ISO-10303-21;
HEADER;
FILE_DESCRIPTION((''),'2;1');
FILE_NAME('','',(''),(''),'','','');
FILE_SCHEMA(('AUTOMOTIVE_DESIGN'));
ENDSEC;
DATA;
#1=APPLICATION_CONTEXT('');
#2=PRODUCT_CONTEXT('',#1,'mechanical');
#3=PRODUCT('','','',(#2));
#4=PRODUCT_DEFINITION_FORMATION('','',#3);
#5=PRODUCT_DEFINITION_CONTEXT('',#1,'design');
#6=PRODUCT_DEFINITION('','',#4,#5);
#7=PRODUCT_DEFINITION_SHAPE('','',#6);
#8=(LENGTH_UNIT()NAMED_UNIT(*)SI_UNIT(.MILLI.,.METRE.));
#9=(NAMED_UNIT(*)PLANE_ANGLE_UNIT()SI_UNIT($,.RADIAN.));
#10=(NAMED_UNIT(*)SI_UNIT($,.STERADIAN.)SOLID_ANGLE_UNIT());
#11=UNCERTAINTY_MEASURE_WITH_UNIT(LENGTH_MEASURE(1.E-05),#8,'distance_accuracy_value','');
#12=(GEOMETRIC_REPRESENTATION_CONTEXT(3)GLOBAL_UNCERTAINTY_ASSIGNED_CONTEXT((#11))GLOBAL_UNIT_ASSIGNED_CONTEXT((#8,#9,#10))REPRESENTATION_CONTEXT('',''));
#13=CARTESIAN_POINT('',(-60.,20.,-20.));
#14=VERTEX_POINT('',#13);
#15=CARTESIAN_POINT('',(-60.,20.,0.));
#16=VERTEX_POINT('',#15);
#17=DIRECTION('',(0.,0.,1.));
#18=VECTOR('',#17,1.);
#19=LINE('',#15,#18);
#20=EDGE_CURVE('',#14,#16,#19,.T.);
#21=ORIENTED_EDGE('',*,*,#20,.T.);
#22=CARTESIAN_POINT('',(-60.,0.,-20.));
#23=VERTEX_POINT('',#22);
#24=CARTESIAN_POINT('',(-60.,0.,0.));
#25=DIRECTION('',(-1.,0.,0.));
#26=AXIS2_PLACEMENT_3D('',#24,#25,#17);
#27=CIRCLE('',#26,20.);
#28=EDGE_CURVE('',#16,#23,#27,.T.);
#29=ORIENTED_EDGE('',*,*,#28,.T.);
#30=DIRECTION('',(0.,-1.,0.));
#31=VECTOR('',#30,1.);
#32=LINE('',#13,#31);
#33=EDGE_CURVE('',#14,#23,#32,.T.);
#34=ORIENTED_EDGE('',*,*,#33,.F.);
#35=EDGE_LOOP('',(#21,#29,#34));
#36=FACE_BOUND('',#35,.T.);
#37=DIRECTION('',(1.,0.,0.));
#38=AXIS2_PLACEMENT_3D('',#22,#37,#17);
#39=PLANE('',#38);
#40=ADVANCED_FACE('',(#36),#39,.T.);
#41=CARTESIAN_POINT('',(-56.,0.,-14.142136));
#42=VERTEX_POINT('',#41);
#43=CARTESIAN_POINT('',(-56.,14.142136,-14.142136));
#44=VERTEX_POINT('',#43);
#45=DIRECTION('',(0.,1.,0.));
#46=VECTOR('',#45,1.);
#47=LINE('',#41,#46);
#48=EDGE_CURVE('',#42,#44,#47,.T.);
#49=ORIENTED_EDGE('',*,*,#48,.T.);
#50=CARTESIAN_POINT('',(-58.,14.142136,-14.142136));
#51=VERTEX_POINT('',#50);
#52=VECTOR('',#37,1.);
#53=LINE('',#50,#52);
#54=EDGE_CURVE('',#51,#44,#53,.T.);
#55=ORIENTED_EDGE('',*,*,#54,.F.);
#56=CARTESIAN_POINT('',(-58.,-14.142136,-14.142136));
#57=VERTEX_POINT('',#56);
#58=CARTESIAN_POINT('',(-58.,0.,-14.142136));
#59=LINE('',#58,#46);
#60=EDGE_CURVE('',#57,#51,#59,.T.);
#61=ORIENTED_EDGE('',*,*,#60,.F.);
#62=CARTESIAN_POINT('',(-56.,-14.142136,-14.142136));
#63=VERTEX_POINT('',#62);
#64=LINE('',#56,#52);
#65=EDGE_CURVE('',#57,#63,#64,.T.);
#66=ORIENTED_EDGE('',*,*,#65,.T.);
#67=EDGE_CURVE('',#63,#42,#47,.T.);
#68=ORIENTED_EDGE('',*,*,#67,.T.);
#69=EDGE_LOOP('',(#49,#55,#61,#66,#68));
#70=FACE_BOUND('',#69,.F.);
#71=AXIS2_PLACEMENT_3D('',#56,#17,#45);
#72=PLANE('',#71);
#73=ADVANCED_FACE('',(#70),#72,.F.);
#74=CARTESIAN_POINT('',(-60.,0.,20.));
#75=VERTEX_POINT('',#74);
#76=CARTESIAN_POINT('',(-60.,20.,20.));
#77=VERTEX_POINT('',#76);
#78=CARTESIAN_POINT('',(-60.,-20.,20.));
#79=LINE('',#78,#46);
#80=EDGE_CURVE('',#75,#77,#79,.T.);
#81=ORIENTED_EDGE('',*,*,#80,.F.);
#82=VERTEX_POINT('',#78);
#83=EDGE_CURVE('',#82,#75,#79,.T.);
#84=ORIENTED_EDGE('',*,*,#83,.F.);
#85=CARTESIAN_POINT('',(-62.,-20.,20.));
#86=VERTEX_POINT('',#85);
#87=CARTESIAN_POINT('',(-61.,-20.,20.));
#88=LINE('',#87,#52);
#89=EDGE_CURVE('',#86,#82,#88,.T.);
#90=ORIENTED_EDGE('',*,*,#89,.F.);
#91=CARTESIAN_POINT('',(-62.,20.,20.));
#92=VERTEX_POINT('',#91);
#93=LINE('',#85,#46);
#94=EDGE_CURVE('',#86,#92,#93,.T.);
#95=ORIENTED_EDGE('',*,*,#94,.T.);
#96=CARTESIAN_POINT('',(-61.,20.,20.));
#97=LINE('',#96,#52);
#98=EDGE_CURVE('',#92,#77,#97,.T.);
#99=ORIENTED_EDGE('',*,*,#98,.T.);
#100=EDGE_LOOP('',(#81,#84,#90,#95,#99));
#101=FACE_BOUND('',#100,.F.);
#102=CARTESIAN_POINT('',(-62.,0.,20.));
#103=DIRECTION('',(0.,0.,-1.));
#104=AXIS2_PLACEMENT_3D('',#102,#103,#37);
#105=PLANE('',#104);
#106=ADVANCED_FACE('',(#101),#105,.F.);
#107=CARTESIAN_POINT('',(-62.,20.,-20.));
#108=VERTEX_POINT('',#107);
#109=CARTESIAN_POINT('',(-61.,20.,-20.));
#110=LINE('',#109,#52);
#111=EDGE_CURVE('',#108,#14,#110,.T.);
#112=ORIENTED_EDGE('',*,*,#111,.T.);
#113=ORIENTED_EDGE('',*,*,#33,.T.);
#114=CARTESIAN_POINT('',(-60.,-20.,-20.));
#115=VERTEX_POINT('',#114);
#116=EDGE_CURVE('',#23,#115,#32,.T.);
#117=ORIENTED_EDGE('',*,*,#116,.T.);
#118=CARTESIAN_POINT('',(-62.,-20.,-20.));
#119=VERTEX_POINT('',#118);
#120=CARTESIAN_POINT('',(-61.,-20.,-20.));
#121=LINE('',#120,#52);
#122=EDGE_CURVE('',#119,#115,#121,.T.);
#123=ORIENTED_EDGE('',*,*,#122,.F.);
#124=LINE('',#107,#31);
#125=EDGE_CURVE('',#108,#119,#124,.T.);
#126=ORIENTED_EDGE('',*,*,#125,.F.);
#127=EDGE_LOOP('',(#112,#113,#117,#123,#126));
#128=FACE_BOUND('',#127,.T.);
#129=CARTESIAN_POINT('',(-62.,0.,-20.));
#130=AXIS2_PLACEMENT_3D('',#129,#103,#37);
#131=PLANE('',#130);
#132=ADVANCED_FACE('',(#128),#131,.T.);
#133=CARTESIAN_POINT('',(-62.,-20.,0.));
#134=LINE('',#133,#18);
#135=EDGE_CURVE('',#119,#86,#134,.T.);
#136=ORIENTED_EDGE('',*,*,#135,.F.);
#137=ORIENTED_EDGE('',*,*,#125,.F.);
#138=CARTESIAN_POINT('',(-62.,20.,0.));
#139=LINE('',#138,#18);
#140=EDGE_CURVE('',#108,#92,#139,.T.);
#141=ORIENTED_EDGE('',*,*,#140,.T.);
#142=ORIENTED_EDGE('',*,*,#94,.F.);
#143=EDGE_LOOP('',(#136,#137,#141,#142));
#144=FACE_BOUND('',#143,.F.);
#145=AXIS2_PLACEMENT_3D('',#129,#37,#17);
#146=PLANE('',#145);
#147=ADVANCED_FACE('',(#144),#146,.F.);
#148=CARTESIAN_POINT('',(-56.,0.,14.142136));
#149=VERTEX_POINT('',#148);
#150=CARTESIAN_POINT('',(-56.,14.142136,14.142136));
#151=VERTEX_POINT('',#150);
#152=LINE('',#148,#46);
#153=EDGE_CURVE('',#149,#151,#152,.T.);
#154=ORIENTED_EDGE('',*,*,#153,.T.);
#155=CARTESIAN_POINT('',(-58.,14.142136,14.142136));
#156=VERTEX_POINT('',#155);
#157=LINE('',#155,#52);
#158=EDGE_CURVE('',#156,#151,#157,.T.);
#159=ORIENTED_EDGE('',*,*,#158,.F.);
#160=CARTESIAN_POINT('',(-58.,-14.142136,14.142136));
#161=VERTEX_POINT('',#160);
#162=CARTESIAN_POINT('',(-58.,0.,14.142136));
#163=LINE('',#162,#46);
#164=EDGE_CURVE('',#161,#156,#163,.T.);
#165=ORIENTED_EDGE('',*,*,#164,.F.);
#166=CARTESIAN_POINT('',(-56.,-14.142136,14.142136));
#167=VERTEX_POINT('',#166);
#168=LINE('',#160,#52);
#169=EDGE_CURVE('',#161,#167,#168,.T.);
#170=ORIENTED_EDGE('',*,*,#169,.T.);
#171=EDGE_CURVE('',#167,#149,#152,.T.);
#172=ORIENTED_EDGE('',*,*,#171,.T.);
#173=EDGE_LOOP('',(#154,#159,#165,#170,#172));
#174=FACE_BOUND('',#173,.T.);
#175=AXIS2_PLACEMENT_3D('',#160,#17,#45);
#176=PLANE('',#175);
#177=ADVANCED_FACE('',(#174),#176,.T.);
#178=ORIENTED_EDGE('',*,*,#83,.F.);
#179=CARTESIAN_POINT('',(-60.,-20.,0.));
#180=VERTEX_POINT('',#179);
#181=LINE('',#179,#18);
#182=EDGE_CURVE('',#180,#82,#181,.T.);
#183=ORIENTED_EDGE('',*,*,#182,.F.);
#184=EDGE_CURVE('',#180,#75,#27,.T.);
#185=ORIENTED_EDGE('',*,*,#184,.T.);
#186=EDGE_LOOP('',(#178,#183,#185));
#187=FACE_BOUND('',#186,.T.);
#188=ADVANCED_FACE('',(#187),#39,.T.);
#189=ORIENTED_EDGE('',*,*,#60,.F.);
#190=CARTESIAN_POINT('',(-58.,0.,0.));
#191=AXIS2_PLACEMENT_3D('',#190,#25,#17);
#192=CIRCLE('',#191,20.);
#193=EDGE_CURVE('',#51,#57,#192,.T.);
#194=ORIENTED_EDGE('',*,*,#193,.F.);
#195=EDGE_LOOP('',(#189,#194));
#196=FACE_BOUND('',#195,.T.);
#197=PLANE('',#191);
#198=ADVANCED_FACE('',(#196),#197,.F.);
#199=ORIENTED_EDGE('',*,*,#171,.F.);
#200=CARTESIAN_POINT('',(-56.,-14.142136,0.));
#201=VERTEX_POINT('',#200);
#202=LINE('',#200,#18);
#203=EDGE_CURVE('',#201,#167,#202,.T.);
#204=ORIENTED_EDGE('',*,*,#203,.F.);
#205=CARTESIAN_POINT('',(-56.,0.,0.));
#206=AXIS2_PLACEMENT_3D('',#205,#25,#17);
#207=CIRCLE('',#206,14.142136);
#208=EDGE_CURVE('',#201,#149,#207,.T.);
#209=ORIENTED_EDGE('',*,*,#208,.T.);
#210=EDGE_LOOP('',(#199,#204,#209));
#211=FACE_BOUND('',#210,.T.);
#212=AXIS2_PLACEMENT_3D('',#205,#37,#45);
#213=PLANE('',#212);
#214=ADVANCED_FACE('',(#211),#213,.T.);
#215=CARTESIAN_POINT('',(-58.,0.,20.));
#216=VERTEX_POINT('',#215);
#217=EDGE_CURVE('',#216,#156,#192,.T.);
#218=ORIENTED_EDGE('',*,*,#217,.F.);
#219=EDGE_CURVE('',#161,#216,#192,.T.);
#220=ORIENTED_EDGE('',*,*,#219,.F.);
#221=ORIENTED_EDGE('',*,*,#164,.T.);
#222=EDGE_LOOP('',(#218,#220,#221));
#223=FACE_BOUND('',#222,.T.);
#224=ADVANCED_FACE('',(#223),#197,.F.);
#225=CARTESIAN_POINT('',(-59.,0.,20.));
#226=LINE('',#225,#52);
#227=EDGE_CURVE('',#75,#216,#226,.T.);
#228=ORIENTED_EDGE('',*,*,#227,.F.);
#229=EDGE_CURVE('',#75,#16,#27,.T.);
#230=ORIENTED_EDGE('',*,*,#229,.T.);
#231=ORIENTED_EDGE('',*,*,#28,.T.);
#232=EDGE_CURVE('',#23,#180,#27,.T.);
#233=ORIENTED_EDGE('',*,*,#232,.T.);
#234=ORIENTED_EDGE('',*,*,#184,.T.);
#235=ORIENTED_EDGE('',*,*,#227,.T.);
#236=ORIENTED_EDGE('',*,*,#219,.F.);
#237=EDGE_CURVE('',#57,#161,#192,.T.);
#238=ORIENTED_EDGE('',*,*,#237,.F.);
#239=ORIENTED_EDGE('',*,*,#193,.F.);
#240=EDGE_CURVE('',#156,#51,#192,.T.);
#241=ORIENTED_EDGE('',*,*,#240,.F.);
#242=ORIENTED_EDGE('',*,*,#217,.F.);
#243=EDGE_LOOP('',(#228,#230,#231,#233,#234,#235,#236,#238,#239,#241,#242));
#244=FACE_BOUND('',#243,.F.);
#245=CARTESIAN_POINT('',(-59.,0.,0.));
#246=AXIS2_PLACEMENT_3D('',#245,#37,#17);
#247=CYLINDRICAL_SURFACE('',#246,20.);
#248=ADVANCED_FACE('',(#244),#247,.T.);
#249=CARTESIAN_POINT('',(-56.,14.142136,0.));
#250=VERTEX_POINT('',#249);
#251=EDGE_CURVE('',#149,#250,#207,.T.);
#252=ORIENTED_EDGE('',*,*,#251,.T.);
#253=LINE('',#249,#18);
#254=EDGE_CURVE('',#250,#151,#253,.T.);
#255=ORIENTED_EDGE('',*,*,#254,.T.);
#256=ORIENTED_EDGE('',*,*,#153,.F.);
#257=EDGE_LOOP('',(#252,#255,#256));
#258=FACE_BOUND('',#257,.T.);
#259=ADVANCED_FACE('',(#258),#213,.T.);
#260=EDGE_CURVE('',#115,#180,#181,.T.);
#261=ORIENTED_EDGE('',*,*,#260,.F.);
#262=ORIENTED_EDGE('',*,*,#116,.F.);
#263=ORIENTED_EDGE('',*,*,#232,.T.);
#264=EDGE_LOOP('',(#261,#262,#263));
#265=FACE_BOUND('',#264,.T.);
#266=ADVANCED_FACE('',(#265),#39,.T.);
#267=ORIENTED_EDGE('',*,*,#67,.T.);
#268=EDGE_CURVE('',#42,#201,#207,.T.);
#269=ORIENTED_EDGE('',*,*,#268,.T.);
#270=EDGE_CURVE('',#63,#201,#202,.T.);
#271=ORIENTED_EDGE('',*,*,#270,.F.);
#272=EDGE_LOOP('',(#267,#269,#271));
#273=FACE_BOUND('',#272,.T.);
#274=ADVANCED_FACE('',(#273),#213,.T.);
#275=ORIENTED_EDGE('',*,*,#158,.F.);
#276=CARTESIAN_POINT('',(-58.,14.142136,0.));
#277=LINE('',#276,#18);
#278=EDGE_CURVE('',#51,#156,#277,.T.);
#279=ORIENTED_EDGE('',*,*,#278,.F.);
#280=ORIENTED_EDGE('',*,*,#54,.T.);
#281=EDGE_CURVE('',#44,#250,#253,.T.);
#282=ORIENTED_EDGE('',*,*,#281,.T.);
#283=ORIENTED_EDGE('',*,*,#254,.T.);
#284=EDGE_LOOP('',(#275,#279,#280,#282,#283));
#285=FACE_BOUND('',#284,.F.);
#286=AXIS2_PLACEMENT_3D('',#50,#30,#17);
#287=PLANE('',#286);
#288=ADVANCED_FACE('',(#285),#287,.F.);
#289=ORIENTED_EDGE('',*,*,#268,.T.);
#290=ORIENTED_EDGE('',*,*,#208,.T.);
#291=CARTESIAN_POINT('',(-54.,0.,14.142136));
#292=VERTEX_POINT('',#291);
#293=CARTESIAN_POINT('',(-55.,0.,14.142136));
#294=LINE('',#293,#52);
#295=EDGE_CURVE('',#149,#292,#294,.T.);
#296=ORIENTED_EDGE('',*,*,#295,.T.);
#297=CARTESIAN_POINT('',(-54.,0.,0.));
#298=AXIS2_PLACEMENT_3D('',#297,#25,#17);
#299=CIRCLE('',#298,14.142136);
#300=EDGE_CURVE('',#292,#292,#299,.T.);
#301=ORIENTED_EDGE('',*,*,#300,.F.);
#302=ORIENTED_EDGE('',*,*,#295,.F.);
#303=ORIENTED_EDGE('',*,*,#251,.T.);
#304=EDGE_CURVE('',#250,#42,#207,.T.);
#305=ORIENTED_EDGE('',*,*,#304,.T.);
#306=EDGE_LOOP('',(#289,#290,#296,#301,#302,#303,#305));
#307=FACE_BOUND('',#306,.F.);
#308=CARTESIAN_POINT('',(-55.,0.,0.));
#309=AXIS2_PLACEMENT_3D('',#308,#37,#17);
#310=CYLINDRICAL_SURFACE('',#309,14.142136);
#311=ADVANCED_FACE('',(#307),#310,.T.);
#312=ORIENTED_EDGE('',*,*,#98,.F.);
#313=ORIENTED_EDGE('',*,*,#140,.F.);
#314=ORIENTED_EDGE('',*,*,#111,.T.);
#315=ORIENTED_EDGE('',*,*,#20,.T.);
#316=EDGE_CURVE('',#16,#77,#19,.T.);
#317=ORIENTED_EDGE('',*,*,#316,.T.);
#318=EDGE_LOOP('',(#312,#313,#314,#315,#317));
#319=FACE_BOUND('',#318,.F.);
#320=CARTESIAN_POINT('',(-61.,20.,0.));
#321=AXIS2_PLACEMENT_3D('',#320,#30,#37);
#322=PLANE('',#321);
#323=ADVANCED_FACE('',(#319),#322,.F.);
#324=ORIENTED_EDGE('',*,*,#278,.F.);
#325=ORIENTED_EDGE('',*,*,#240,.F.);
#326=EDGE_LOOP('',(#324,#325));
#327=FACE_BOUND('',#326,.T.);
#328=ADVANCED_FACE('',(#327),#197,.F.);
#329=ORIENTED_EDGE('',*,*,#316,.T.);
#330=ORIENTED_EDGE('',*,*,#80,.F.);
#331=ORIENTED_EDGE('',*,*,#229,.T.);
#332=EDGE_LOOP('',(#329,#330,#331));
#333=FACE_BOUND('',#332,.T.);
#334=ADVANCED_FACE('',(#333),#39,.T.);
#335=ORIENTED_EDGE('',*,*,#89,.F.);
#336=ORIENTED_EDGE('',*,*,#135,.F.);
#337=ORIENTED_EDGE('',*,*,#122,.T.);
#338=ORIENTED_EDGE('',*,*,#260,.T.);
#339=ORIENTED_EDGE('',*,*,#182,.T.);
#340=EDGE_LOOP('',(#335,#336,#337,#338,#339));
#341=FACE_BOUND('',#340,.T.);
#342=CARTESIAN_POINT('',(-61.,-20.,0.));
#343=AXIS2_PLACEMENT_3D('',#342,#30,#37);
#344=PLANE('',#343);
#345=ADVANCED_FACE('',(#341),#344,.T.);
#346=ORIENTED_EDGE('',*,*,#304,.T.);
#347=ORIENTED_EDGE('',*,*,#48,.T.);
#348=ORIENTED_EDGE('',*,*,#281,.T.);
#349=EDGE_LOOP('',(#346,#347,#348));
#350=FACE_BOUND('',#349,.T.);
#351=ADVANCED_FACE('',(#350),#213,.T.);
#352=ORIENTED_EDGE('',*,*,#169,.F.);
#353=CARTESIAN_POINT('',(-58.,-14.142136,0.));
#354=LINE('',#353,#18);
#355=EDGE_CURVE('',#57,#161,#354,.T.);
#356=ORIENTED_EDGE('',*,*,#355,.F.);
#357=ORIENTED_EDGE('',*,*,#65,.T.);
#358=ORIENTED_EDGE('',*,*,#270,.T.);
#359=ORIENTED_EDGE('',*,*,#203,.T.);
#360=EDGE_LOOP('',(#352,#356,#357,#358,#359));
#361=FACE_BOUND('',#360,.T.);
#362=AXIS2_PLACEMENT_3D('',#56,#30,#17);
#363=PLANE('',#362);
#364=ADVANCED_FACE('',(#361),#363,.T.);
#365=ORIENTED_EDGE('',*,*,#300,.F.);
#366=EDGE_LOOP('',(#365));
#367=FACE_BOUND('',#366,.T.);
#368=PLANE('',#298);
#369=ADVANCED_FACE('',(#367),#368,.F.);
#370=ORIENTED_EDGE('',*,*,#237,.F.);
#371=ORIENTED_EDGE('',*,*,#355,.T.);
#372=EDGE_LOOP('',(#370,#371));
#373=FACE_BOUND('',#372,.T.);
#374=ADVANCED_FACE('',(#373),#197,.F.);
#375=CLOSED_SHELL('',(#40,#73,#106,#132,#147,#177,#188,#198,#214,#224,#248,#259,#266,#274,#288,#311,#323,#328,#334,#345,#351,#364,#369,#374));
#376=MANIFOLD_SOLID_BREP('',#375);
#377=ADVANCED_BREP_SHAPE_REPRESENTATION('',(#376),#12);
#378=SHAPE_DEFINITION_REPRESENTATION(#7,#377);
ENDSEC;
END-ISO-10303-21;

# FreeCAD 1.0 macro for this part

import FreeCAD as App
import Part
import Sketcher

doc = App.newDocument("Part")
body = doc.addObject("PartDesign::Body", "Body")

# Sketch on XZ plane
sketch1 = body.newObject("Sketcher::SketchObject", "Sketch")
sketch1.AttachmentSupport = (doc.getObject("XZ_Plane"), [""])
sketch1.MapMode = "FlatFace"
sketch1.addGeometry(Part.LineSegment(App.Vector(-62, 20, 0), App.Vector(-62, -20, 0)), False)
sketch1.addGeometry(Part.LineSegment(App.Vector(-62, -20, 0), App.Vector(-60, -20, 0)), False)
sketch1.addGeometry(Part.LineSegment(App.Vector(-60, -20, 0), App.Vector(-60, 20, 0)), False)
sketch1.addGeometry(Part.LineSegment(App.Vector(-60, 20, 0), App.Vector(-62, 20, 0)), False)
sketch1.addConstraint(Sketcher.Constraint("Coincident", 0, 2, 1, 1))
sketch1.addConstraint(Sketcher.Constraint("Coincident", 1, 2, 2, 1))
sketch1.addConstraint(Sketcher.Constraint("Coincident", 2, 2, 3, 1))
sketch1.addConstraint(Sketcher.Constraint("Coincident", 3, 2, 0, 1))
sketch1.addConstraint(Sketcher.Constraint("Vertical", 0))
sketch1.addConstraint(Sketcher.Constraint("Horizontal", 1))
sketch1.addConstraint(Sketcher.Constraint("Vertical", 2))
sketch1.addConstraint(Sketcher.Constraint("Horizontal", 3))
sketch1.addConstraint(Sketcher.Constraint("DistanceX", 1, 1, 1, 2, 2.0))
sketch1.addConstraint(Sketcher.Constraint("DistanceY", 0, 2, 0, 1, 40.0))
sketch1.addConstraint(Sketcher.Constraint("DistanceX", 0, 2, -1, 1, 62.0))
sketch1.addConstraint(Sketcher.Constraint("DistanceY", 0, 2, -1, 1, 20.0))
pad1 = body.newObject("PartDesign::Pad", "Pad")
pad1.Profile = sketch1
pad1.Length = 40
pad1.Midplane = True

# Sketch on XZ plane
sketch2 = body.newObject("Sketcher::SketchObject", "Sketch001")
sketch2.AttachmentSupport = (doc.getObject("XZ_Plane"), [""])
sketch2.MapMode = "FlatFace"
sketch2.addGeometry(Part.LineSegment(App.Vector(-60, 20, 0), App.Vector(-60, 0, 0)), False)
sketch2.addGeometry(Part.LineSegment(App.Vector(-60, 0, 0), App.Vector(-58, 0, 0)), False)
sketch2.addGeometry(Part.LineSegment(App.Vector(-58, 0, 0), App.Vector(-58, 20, 0)), False)
sketch2.addGeometry(Part.LineSegment(App.Vector(-58, 20, 0), App.Vector(-60, 20, 0)), False)
sketch2.addConstraint(Sketcher.Constraint("Coincident", 0, 2, 1, 1))
sketch2.addConstraint(Sketcher.Constraint("Coincident", 1, 2, 2, 1))
sketch2.addConstraint(Sketcher.Constraint("Coincident", 2, 2, 3, 1))
sketch2.addConstraint(Sketcher.Constraint("Coincident", 3, 2, 0, 1))
sketch2.addConstraint(Sketcher.Constraint("Vertical", 0))
sketch2.addConstraint(Sketcher.Constraint("Horizontal", 1))
sketch2.addConstraint(Sketcher.Constraint("Vertical", 2))
sketch2.addConstraint(Sketcher.Constraint("Horizontal", 3))
sketch2.addConstraint(Sketcher.Constraint("PointOnObject", 0, 2, -1))
sketch2.addConstraint(Sketcher.Constraint("DistanceX", 1, 1, 1, 2, 2.0))
sketch2.addConstraint(Sketcher.Constraint("DistanceY", 0, 2, 0, 1, 20.0))
sketch2.addConstraint(Sketcher.Constraint("DistanceX", 0, 2, -1, 1, 60.0))
revolution = body.newObject("PartDesign::Revolution", "Revolution")
revolution.Profile = sketch2
revolution.ReferenceAxis = (sketch2, ["H_Axis"])
revolution.Angle = 360

# Sketch on YZ plane
sketch3 = body.newObject("Sketcher::SketchObject", "Sketch002")
sketch3.AttachmentSupport = (doc.getObject("YZ_Plane"), [""])
sketch3.MapMode = "FlatFace"
sketch3.AttachmentOffset = App.Placement(App.Vector(0, 0, -58), App.Rotation())
sketch3.addGeometry(Part.LineSegment(App.Vector(-14.142136, 14.142136, 0), App.Vector(-14.142136, -14.142136, 0)), False)
sketch3.addGeometry(Part.LineSegment(App.Vector(-14.142136, -14.142136, 0), App.Vector(14.142136, -14.142136, 0)), False)
sketch3.addGeometry(Part.LineSegment(App.Vector(14.142136, -14.142136, 0), App.Vector(14.142136, 14.142136, 0)), False)
sketch3.addGeometry(Part.LineSegment(App.Vector(14.142136, 14.142136, 0), App.Vector(-14.142136, 14.142136, 0)), False)
sketch3.addConstraint(Sketcher.Constraint("Coincident", 0, 2, 1, 1))
sketch3.addConstraint(Sketcher.Constraint("Coincident", 1, 2, 2, 1))
sketch3.addConstraint(Sketcher.Constraint("Coincident", 2, 2, 3, 1))
sketch3.addConstraint(Sketcher.Constraint("Coincident", 3, 2, 0, 1))
sketch3.addConstraint(Sketcher.Constraint("Vertical", 0))
sketch3.addConstraint(Sketcher.Constraint("Horizontal", 1))
sketch3.addConstraint(Sketcher.Constraint("Vertical", 2))
sketch3.addConstraint(Sketcher.Constraint("Horizontal", 3))
sketch3.addConstraint(Sketcher.Constraint("Symmetric", 0, 2, 2, 2, -1, 1))
sketch3.addConstraint(Sketcher.Constraint("Equal", 3, 0))
sketch3.addConstraint(Sketcher.Constraint("DistanceX", 1, 1, 1, 2, 28.284272))
pad2 = body.newObject("PartDesign::Pad", "Pad001")
pad2.Profile = sketch3
pad2.Length = 2

# Sketch on XZ plane
sketch4 = body.newObject("Sketcher::SketchObject", "Sketch003")
sketch4.AttachmentSupport = (doc.getObject("XZ_Plane"), [""])
sketch4.MapMode = "FlatFace"
sketch4.addGeometry(Part.LineSegment(App.Vector(-56, 14.142136, 0), App.Vector(-56, 0, 0)), False)
sketch4.addGeometry(Part.LineSegment(App.Vector(-56, 0, 0), App.Vector(-54, 0, 0)), False)
sketch4.addGeometry(Part.LineSegment(App.Vector(-54, 0, 0), App.Vector(-54, 14.142136, 0)), False)
sketch4.addGeometry(Part.LineSegment(App.Vector(-54, 14.142136, 0), App.Vector(-56, 14.142136, 0)), False)
sketch4.addConstraint(Sketcher.Constraint("Coincident", 0, 2, 1, 1))
sketch4.addConstraint(Sketcher.Constraint("Coincident", 1, 2, 2, 1))
sketch4.addConstraint(Sketcher.Constraint("Coincident", 2, 2, 3, 1))
sketch4.addConstraint(Sketcher.Constraint("Coincident", 3, 2, 0, 1))
sketch4.addConstraint(Sketcher.Constraint("Vertical", 0))
sketch4.addConstraint(Sketcher.Constraint("Horizontal", 1))
sketch4.addConstraint(Sketcher.Constraint("Vertical", 2))
sketch4.addConstraint(Sketcher.Constraint("Horizontal", 3))
sketch4.addConstraint(Sketcher.Constraint("PointOnObject", 0, 2, -1))
sketch4.addConstraint(Sketcher.Constraint("DistanceX", 1, 1, 1, 2, 2.0))
sketch4.addConstraint(Sketcher.Constraint("DistanceX", 0, 2, -1, 1, 56.0))
sketch4.addConstraint(Sketcher.Constraint("DistanceY", 0, 2, 0, 1, 14.142136))
revolution2 = body.newObject("PartDesign::Revolution", "Revolution001")
revolution2.Profile = sketch4
revolution2.ReferenceAxis = (sketch4, ["H_Axis"])
revolution2.Angle = 360

doc.recompute()
